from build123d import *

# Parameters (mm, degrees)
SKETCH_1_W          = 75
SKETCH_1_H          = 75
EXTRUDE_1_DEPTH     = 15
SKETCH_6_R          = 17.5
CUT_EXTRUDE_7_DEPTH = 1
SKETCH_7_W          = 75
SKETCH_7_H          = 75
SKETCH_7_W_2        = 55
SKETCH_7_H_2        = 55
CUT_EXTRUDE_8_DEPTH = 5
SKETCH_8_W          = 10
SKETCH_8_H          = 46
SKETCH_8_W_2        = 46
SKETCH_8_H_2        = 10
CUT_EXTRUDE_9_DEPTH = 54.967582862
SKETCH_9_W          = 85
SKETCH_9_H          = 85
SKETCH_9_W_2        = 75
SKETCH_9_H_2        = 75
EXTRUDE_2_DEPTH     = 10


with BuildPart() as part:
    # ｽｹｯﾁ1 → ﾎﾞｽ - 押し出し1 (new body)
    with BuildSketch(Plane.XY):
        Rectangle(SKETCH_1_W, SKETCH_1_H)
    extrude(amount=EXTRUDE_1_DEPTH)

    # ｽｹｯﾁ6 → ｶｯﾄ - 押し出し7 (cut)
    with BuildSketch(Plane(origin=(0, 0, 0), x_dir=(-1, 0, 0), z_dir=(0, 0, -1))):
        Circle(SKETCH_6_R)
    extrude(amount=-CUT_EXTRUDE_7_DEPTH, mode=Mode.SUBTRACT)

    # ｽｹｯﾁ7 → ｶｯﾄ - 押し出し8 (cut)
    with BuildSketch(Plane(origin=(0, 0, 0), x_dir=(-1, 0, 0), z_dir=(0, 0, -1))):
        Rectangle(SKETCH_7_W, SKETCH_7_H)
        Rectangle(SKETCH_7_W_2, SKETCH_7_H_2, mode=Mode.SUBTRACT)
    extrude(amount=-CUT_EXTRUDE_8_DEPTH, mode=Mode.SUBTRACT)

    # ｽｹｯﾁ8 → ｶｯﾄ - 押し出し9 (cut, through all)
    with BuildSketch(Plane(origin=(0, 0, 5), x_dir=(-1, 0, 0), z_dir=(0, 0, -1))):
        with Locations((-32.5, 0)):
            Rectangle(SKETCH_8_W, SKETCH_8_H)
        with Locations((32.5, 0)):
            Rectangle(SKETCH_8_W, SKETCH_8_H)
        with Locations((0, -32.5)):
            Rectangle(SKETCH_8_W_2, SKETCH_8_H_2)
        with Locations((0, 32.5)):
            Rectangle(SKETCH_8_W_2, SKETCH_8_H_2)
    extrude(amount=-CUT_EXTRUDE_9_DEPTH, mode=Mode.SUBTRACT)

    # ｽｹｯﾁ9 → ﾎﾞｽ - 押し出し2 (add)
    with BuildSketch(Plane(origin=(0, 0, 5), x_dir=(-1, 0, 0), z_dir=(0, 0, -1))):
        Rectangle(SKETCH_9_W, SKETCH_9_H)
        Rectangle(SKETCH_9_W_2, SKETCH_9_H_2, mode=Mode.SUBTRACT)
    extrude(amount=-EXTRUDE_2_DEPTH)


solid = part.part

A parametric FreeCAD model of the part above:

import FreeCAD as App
import Part
import Sketcher

V = App.Vector
Q = App.Units.Quantity

doc = App.newDocument("Part")
body = doc.addObject("PartDesign::Body", "Body")

# Sketch on XY plane
sketch1 = body.newObject("Sketcher::SketchObject", "Sketch")
sketch1.AttachmentSupport = (doc.getObject("XY_Plane"), [""])
sketch1.MapMode = "FlatFace"
sketch1.addGeometry([
    Part.LineSegment(V(-38, 38, 0), V(-38, -38, 0)),
    Part.LineSegment(V(-38, -38, 0), V(38, -38, 0)),
    Part.LineSegment(V(38, -38, 0), V(38, 38, 0)),
    Part.LineSegment(V(38, 38, 0), V(-38, 38, 0)),
], False)
sketch1.addConstraint([
    Sketcher.Constraint("Coincident", 0, 2, 1, 1),
    Sketcher.Constraint("Coincident", 1, 2, 2, 1),
    Sketcher.Constraint("Coincident", 2, 2, 3, 1),
    Sketcher.Constraint("Coincident", 3, 2, 0, 1),
    Sketcher.Constraint("Vertical", 0),
    Sketcher.Constraint("Horizontal", 1),
    Sketcher.Constraint("Vertical", 2),
    Sketcher.Constraint("Horizontal", 3),
    Sketcher.Constraint("Symmetric", 0, 2, 2, 2, -1, 1),
    Sketcher.Constraint("Equal", 3, 0),
    Sketcher.Constraint("DistanceX", 1, 1, 1, 2, Q("75 mm")),
])
pad1 = body.newObject("PartDesign::Pad", "Pad")
pad1.Profile = sketch1
pad1.Length = 15

# Sketch on XY plane
sketch2 = body.newObject("Sketcher::SketchObject", "Sketch001")
sketch2.AttachmentSupport = (doc.getObject("XY_Plane"), [""])
sketch2.MapMode = "FlatFace"
sketch2.addGeometry(Part.Circle(V(0, 0, 0), V(0, 0, 1), 18), False)
sketch2.addConstraint([
    Sketcher.Constraint("Coincident", 0, 3, -1, 1),
    Sketcher.Constraint("Diameter", 0, Q("35 mm")),
])
pocket1 = body.newObject("PartDesign::Pocket", "Pocket")
pocket1.Profile = sketch2
pocket1.Length = 1
pocket1.Reversed = True

# Sketch on XY plane
sketch3 = body.newObject("Sketcher::SketchObject", "Sketch002")
sketch3.AttachmentSupport = (doc.getObject("XY_Plane"), [""])
sketch3.MapMode = "FlatFace"
sketch3.addGeometry([
    Part.LineSegment(V(38, 38, 0), V(38, -38, 0)),  # 0
    Part.LineSegment(V(38, -38, 0), V(-38, -38, 0)),  # 1
    Part.LineSegment(V(-38, -38, 0), V(-38, 38, 0)),  # 2
    Part.LineSegment(V(-38, 38, 0), V(38, 38, 0)),  # 3
    Part.LineSegment(V(-28, -28, 0), V(28, -28, 0)),  # 4
    Part.LineSegment(V(28, -28, 0), V(28, 28, 0)),  # 5
    Part.LineSegment(V(28, 28, 0), V(-28, 28, 0)),  # 6
    Part.LineSegment(V(-28, 28, 0), V(-28, -28, 0)),  # 7
], False)
sketch3.addConstraint([
    Sketcher.Constraint("Coincident", 0, 2, 1, 1),
    Sketcher.Constraint("Coincident", 1, 2, 2, 1),
    Sketcher.Constraint("Coincident", 2, 2, 3, 1),
    Sketcher.Constraint("Coincident", 3, 2, 0, 1),
    Sketcher.Constraint("Coincident", 4, 2, 5, 1),
    Sketcher.Constraint("Coincident", 5, 2, 6, 1),
    Sketcher.Constraint("Coincident", 6, 2, 7, 1),
    Sketcher.Constraint("Coincident", 7, 2, 4, 1),
    Sketcher.Constraint("Vertical", 0),
    Sketcher.Constraint("Horizontal", 1),
    Sketcher.Constraint("Vertical", 2),
    Sketcher.Constraint("Horizontal", 3),
    Sketcher.Constraint("Horizontal", 4),
    Sketcher.Constraint("Vertical", 5),
    Sketcher.Constraint("Horizontal", 6),
    Sketcher.Constraint("Vertical", 7),
    Sketcher.Constraint("Symmetric", 0, 2, 2, 2, -1, 1),
    Sketcher.Constraint("Symmetric", 4, 2, 6, 2, -1, 1),
    Sketcher.Constraint("Equal", 3, 0),
    Sketcher.Constraint("Equal", 6, 5),
    Sketcher.Constraint("DistanceX", 1, 2, 1, 1, Q("75 mm")),
    Sketcher.Constraint("DistanceX", 4, 1, 4, 2, Q("55 mm")),
])
pocket2 = body.newObject("PartDesign::Pocket", "Pocket001")
pocket2.Profile = sketch3
pocket2.Length = 5
pocket2.Reversed = True

# Sketch on XY plane
sketch4 = body.newObject("Sketcher::SketchObject", "Sketch003")
sketch4.AttachmentSupport = (doc.getObject("XY_Plane"), [""])
sketch4.MapMode = "FlatFace"
sketch4.AttachmentOffset = App.Placement(V(0, 0, 5), App.Rotation())
sketch4.addGeometry([
    Part.LineSegment(V(38, 23, 0), V(38, -23, 0)),  # 0
    Part.LineSegment(V(38, -23, 0), V(28, -23, 0)),  # 1
    Part.LineSegment(V(28, -23, 0), V(28, 23, 0)),  # 2
    Part.LineSegment(V(28, 23, 0), V(38, 23, 0)),  # 3
    Part.LineSegment(V(-28, 23, 0), V(-28, -23, 0)),  # 4
    Part.LineSegment(V(-28, -23, 0), V(-38, -23, 0)),  # 5
    Part.LineSegment(V(-38, -23, 0), V(-38, 23, 0)),  # 6
    Part.LineSegment(V(-38, 23, 0), V(-28, 23, 0)),  # 7
    Part.LineSegment(V(23, -28, 0), V(23, -38, 0)),  # 8
    Part.LineSegment(V(23, -38, 0), V(-23, -38, 0)),  # 9
    Part.LineSegment(V(-23, -38, 0), V(-23, -28, 0)),  # 10
    Part.LineSegment(V(-23, -28, 0), V(23, -28, 0)),  # 11
    Part.LineSegment(V(23, 38, 0), V(23, 28, 0)),  # 12
    Part.LineSegment(V(23, 28, 0), V(-23, 28, 0)),  # 13
    Part.LineSegment(V(-23, 28, 0), V(-23, 38, 0)),  # 14
    Part.LineSegment(V(-23, 38, 0), V(23, 38, 0)),  # 15
], False)
sketch4.addConstraint([
    Sketcher.Constraint("Coincident", 0, 2, 1, 1),
    Sketcher.Constraint("Coincident", 1, 2, 2, 1),
    Sketcher.Constraint("Coincident", 2, 2, 3, 1),
    Sketcher.Constraint("Coincident", 3, 2, 0, 1),
    Sketcher.Constraint("Coincident", 4, 2, 5, 1),
    Sketcher.Constraint("Coincident", 5, 2, 6, 1),
    Sketcher.Constraint("Coincident", 6, 2, 7, 1),
    Sketcher.Constraint("Coincident", 7, 2, 4, 1),
    Sketcher.Constraint("Coincident", 8, 2, 9, 1),
    Sketcher.Constraint("Coincident", 9, 2, 10, 1),
    Sketcher.Constraint("Coincident", 10, 2, 11, 1),
    Sketcher.Constraint("Coincident", 11, 2, 8, 1),
    Sketcher.Constraint("Coincident", 12, 2, 13, 1),
    Sketcher.Constraint("Coincident", 13, 2, 14, 1),
    Sketcher.Constraint("Coincident", 14, 2, 15, 1),
    Sketcher.Constraint("Coincident", 15, 2, 12, 1),
    Sketcher.Constraint("Vertical", 0),
    Sketcher.Constraint("Horizontal", 1),
    Sketcher.Constraint("Vertical", 2),
    Sketcher.Constraint("Horizontal", 3),
    Sketcher.Constraint("Vertical", 4),
    Sketcher.Constraint("Horizontal", 5),
    Sketcher.Constraint("Vertical", 6),
    Sketcher.Constraint("Horizontal", 7),
    Sketcher.Constraint("Vertical", 8),
    Sketcher.Constraint("Horizontal", 9),
    Sketcher.Constraint("Vertical", 10),
    Sketcher.Constraint("Horizontal", 11),
    Sketcher.Constraint("Vertical", 12),
    Sketcher.Constraint("Horizontal", 13),
    Sketcher.Constraint("Vertical", 14),
    Sketcher.Constraint("Horizontal", 15),
    Sketcher.Constraint("Symmetric", 2, 2, 4, 2, -1, 1),
    Sketcher.Constraint("Symmetric", 0, 2, 6, 2, -1, 1),
    Sketcher.Constraint("Symmetric", 10, 2, 12, 2, -1, 1),
    Sketcher.Constraint("Symmetric", 8, 2, 14, 2, -1, 1),
    Sketcher.Constraint("Horizontal", 1, 2, 4, 2),
    Sketcher.Constraint("Vertical", 11, 2, 12, 2),
    Sketcher.Constraint("Equal", 15, 0),
    Sketcher.Constraint("Equal", 7, 8),
    Sketcher.Constraint("DistanceX", 1, 2, 1, 1, Q("10 mm")),
    Sketcher.Constraint("DistanceX", 9, 2, 9, 1, Q("46 mm")),
    Sketcher.Constraint("DistanceX", 4, 2, 1, 2, Q("55 mm")),
    Sketcher.Constraint("DistanceY", 8, 2, -1, 1, Q("37.5 mm")),
])
pocket3 = body.newObject("PartDesign::Pocket", "Pocket002")
pocket3.Profile = sketch4
pocket3.Type = "ThroughAll"
pocket3.Reversed = True

# Sketch on XY plane
sketch5 = body.newObject("Sketcher::SketchObject", "Sketch004")
sketch5.AttachmentSupport = (doc.getObject("XY_Plane"), [""])
sketch5.MapMode = "FlatFace"
sketch5.AttachmentOffset = App.Placement(V(0, 0, 5), App.Rotation())
sketch5.addGeometry([
    Part.LineSegment(V(42, 42, 0), V(42, -42, 0)),  # 0
    Part.LineSegment(V(42, -42, 0), V(-42, -42, 0)),  # 1
    Part.LineSegment(V(-42, -42, 0), V(-42, 42, 0)),  # 2
    Part.LineSegment(V(-42, 42, 0), V(42, 42, 0)),  # 3
    Part.LineSegment(V(-38, -38, 0), V(38, -38, 0)),  # 4
    Part.LineSegment(V(38, -38, 0), V(38, 38, 0)),  # 5
    Part.LineSegment(V(38, 38, 0), V(-38, 38, 0)),  # 6
    Part.LineSegment(V(-38, 38, 0), V(-38, -38, 0)),  # 7
], False)
sketch5.addConstraint([
    Sketcher.Constraint("Coincident", 0, 2, 1, 1),
    Sketcher.Constraint("Coincident", 1, 2, 2, 1),
    Sketcher.Constraint("Coincident", 2, 2, 3, 1),
    Sketcher.Constraint("Coincident", 3, 2, 0, 1),
    Sketcher.Constraint("Coincident", 4, 2, 5, 1),
    Sketcher.Constraint("Coincident", 5, 2, 6, 1),
    Sketcher.Constraint("Coincident", 6, 2, 7, 1),
    Sketcher.Constraint("Coincident", 7, 2, 4, 1),
    Sketcher.Constraint("Vertical", 0),
    Sketcher.Constraint("Horizontal", 1),
    Sketcher.Constraint("Vertical", 2),
    Sketcher.Constraint("Horizontal", 3),
    Sketcher.Constraint("Horizontal", 4),
    Sketcher.Constraint("Vertical", 5),
    Sketcher.Constraint("Horizontal", 6),
    Sketcher.Constraint("Vertical", 7),
    Sketcher.Constraint("Symmetric", 0, 2, 2, 2, -1, 1),
    Sketcher.Constraint("Symmetric", 4, 2, 6, 2, -1, 1),
    Sketcher.Constraint("Equal", 3, 0),
    Sketcher.Constraint("Equal", 6, 5),
    Sketcher.Constraint("DistanceX", 1, 2, 1, 1, Q("85 mm")),
    Sketcher.Constraint("DistanceX", 4, 1, 4, 2, Q("75 mm")),
])
pad2 = body.newObject("PartDesign::Pad", "Pad001")
pad2.Profile = sketch5
pad2.Length = 10

doc.recompute()
